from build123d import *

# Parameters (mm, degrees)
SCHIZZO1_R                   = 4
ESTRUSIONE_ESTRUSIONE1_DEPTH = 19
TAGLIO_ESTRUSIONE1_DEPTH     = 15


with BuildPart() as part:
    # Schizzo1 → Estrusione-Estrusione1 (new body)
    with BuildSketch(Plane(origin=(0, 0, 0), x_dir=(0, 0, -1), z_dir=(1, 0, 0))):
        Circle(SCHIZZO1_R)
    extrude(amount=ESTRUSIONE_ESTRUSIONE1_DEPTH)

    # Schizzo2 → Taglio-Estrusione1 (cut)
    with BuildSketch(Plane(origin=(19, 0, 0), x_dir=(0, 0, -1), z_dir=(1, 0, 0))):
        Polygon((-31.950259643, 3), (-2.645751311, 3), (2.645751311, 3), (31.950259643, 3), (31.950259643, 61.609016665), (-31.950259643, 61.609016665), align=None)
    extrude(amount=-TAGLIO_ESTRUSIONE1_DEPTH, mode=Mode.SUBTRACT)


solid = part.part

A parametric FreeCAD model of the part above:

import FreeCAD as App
import Part
import Sketcher
Q = App.Units.Quantity


def add_polygon(sketch, points):
    """Adds a closed chain of lines whose ends are joined by coincident constraints."""
    first, n = sketch.GeometryCount, len(points)
    for a, b in zip(points, points[1:] + points[:1]):
        sketch.addGeometry(Part.LineSegment(App.Vector(*a, 0), App.Vector(*b, 0)), False)
    for i in range(n):
        sketch.addConstraint(Sketcher.Constraint("Coincident", first + i, 2, first + (i + 1) % n, 1))

doc = App.newDocument("Part")
body = doc.addObject("PartDesign::Body", "Body")

# Sketch on YZ plane
sketch1 = body.newObject("Sketcher::SketchObject", "Sketch")
sketch1.AttachmentSupport = (doc.getObject("YZ_Plane"), [""])
sketch1.MapMode = "FlatFace"
sketch1.addGeometry(Part.Circle(App.Vector(0, 0, 0), App.Vector(0, 0, 1), 4), False)
sketch1.addConstraint([
    Sketcher.Constraint("Coincident", 0, 3, -1, 1),
    Sketcher.Constraint("Diameter", 0, Q("8 mm")),
])
pad1 = body.newObject("PartDesign::Pad", "Pad")
pad1.Profile = sketch1
pad1.Length = 19

# Sketch on YZ plane
sketch2 = body.newObject("Sketcher::SketchObject", "Sketch001")
sketch2.AttachmentSupport = (doc.getObject("YZ_Plane"), [""])
sketch2.MapMode = "FlatFace"
sketch2.AttachmentOffset = App.Placement(App.Vector(0, 0, 19), App.Rotation())
add_polygon(sketch2, [(3, 31.95026), (3, -31.95026), (61.609017, -31.95026), (61.609017, 31.95026)])  # lines 0-3
sketch2.addConstraint([
    Sketcher.Constraint("Vertical", 0),
    Sketcher.Constraint("Horizontal", 1),
    Sketcher.Constraint("Vertical", 2),
    Sketcher.Constraint("Horizontal", 3),
    Sketcher.Constraint("DistanceX", -1, 1, 0, 2, Q("3 mm")),
    Sketcher.Constraint("DistanceY", 0, 2, 0, 1, Q("63.900519 mm")),
    Sketcher.Constraint("DistanceX", 1, 1, 1, 2, Q("58.609017 mm")),
    Sketcher.Constraint("DistanceY", 0, 2, -1, 1, Q("31.95026 mm")),
])
pocket1 = body.newObject("PartDesign::Pocket", "Pocket")
pocket1.Profile = sketch2
pocket1.Length = 15

doc.recompute()
